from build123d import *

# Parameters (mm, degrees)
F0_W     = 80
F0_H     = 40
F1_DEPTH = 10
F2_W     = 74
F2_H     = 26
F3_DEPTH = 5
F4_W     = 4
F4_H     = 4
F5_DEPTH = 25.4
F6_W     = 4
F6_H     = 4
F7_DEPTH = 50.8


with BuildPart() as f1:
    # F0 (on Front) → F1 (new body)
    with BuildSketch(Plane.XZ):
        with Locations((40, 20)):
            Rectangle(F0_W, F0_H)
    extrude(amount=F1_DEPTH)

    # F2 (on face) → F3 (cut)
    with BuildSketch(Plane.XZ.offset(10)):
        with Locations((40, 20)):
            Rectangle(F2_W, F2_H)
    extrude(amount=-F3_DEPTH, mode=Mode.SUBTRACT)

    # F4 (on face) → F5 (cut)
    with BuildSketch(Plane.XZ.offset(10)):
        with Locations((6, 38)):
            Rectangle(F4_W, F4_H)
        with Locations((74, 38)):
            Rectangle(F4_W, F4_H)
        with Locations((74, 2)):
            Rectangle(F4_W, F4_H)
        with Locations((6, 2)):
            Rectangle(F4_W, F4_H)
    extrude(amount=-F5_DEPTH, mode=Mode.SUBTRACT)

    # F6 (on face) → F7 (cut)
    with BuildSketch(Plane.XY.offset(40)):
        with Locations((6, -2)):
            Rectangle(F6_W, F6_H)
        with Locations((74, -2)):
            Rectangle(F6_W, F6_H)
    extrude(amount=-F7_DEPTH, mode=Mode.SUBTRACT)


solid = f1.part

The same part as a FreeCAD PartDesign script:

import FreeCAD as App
import Part
import Sketcher
from FreeCAD import Vector

doc = App.newDocument("Part")
body = doc.addObject("PartDesign::Body", "Body")

sketch1 = body.newObject("Sketcher::SketchObject", "Sketch")
sketch1.AttachmentSupport = (doc.getObject("XZ_Plane"), [""])
sketch1.MapMode = "FlatFace"
sketch1.addGeometry(Part.LineSegment(Vector(0, 40, 0), Vector(0, 0, 0)), False)
sketch1.addGeometry(Part.LineSegment(Vector(0, 0, 0), Vector(80, 0, 0)), False)
sketch1.addGeometry(Part.LineSegment(Vector(80, 0, 0), Vector(80, 40, 0)), False)
sketch1.addGeometry(Part.LineSegment(Vector(80, 40, 0), Vector(0, 40, 0)), False)
sketch1.addConstraint(Sketcher.Constraint("Coincident", 0, 2, 1, 1))
sketch1.addConstraint(Sketcher.Constraint("Coincident", 1, 2, 2, 1))
sketch1.addConstraint(Sketcher.Constraint("Coincident", 2, 2, 3, 1))
sketch1.addConstraint(Sketcher.Constraint("Coincident", 3, 2, 0, 1))
sketch1.addConstraint(Sketcher.Constraint("Vertical", 0))
sketch1.addConstraint(Sketcher.Constraint("Horizontal", 1))
sketch1.addConstraint(Sketcher.Constraint("Vertical", 2))
sketch1.addConstraint(Sketcher.Constraint("Horizontal", 3))
sketch1.addConstraint(Sketcher.Constraint("Coincident", 0, 2, -1, 1))
sketch1.addConstraint(Sketcher.Constraint("DistanceX", 1, 1, 1, 2, 80.0))
sketch1.addConstraint(Sketcher.Constraint("DistanceY", 0, 2, 0, 1, 40.0))
pad1 = body.newObject("PartDesign::Pad", "Pad")
pad1.Profile = sketch1
pad1.Length = 10

sketch2 = body.newObject("Sketcher::SketchObject", "Sketch001")
sketch2.AttachmentSupport = (doc.getObject("XZ_Plane"), [""])
sketch2.MapMode = "FlatFace"
sketch2.AttachmentOffset = App.Placement(Vector(0, 0, 10), App.Rotation())
sketch2.addGeometry(Part.LineSegment(Vector(3, 33, 0), Vector(3, 7, 0)), False)
sketch2.addGeometry(Part.LineSegment(Vector(3, 7, 0), Vector(77, 7, 0)), False)
sketch2.addGeometry(Part.LineSegment(Vector(77, 7, 0), Vector(77, 33, 0)), False)
sketch2.addGeometry(Part.LineSegment(Vector(77, 33, 0), Vector(3, 33, 0)), False)
sketch2.addConstraint(Sketcher.Constraint("Coincident", 0, 2, 1, 1))
sketch2.addConstraint(Sketcher.Constraint("Coincident", 1, 2, 2, 1))
sketch2.addConstraint(Sketcher.Constraint("Coincident", 2, 2, 3, 1))
sketch2.addConstraint(Sketcher.Constraint("Coincident", 3, 2, 0, 1))
sketch2.addConstraint(Sketcher.Constraint("Vertical", 0))
sketch2.addConstraint(Sketcher.Constraint("Horizontal", 1))
sketch2.addConstraint(Sketcher.Constraint("Vertical", 2))
sketch2.addConstraint(Sketcher.Constraint("Horizontal", 3))
sketch2.addConstraint(Sketcher.Constraint("DistanceX", 1, 1, 1, 2, 74.0))
sketch2.addConstraint(Sketcher.Constraint("DistanceY", 0, 2, 0, 1, 26.0))
sketch2.addConstraint(Sketcher.Constraint("DistanceX", -1, 1, 0, 2, 3.0))
sketch2.addConstraint(Sketcher.Constraint("DistanceY", -1, 1, 0, 2, 7.0))
pocket1 = body.newObject("PartDesign::Pocket", "Pocket")
pocket1.Profile = sketch2
pocket1.Length = 5

sketch3 = body.newObject("Sketcher::SketchObject", "Sketch002")
sketch3.AttachmentSupport = (doc.getObject("XZ_Plane"), [""])
sketch3.MapMode = "FlatFace"
sketch3.AttachmentOffset = App.Placement(Vector(0, 0, 10), App.Rotation())
sketch3.addGeometry(Part.LineSegment(Vector(4, 40, 0), Vector(4, 36, 0)), False)
sketch3.addGeometry(Part.LineSegment(Vector(4, 36, 0), Vector(8, 36, 0)), False)
sketch3.addGeometry(Part.LineSegment(Vector(8, 36, 0), Vector(8, 40, 0)), False)
sketch3.addGeometry(Part.LineSegment(Vector(8, 40, 0), Vector(4, 40, 0)), False)
sketch3.addGeometry(Part.LineSegment(Vector(72, 40, 0), Vector(72, 36, 0)), False)
sketch3.addGeometry(Part.LineSegment(Vector(72, 36, 0), Vector(76, 36, 0)), False)
sketch3.addGeometry(Part.LineSegment(Vector(76, 36, 0), Vector(76, 40, 0)), False)
sketch3.addGeometry(Part.LineSegment(Vector(76, 40, 0), Vector(72, 40, 0)), False)
sketch3.addGeometry(Part.LineSegment(Vector(72, 4, 0), Vector(72, 0, 0)), False)
sketch3.addGeometry(Part.LineSegment(Vector(72, 0, 0), Vector(76, 0, 0)), False)
sketch3.addGeometry(Part.LineSegment(Vector(76, 0, 0), Vector(76, 4, 0)), False)
sketch3.addGeometry(Part.LineSegment(Vector(76, 4, 0), Vector(72, 4, 0)), False)
sketch3.addGeometry(Part.LineSegment(Vector(4, 4, 0), Vector(4, 0, 0)), False)
sketch3.addGeometry(Part.LineSegment(Vector(4, 0, 0), Vector(8, 0, 0)), False)
sketch3.addGeometry(Part.LineSegment(Vector(8, 0, 0), Vector(8, 4, 0)), False)
sketch3.addGeometry(Part.LineSegment(Vector(8, 4, 0), Vector(4, 4, 0)), False)
sketch3.addConstraint(Sketcher.Constraint("Coincident", 0, 2, 1, 1))
sketch3.addConstraint(Sketcher.Constraint("Coincident", 1, 2, 2, 1))
sketch3.addConstraint(Sketcher.Constraint("Coincident", 2, 2, 3, 1))
sketch3.addConstraint(Sketcher.Constraint("Coincident", 3, 2, 0, 1))
sketch3.addConstraint(Sketcher.Constraint("Coincident", 4, 2, 5, 1))
sketch3.addConstraint(Sketcher.Constraint("Coincident", 5, 2, 6, 1))
sketch3.addConstraint(Sketcher.Constraint("Coincident", 6, 2, 7, 1))
sketch3.addConstraint(Sketcher.Constraint("Coincident", 7, 2, 4, 1))
sketch3.addConstraint(Sketcher.Constraint("Coincident", 8, 2, 9, 1))
sketch3.addConstraint(Sketcher.Constraint("Coincident", 9, 2, 10, 1))
sketch3.addConstraint(Sketcher.Constraint("Coincident", 10, 2, 11, 1))
sketch3.addConstraint(Sketcher.Constraint("Coincident", 11, 2, 8, 1))
sketch3.addConstraint(Sketcher.Constraint("Coincident", 12, 2, 13, 1))
sketch3.addConstraint(Sketcher.Constraint("Coincident", 13, 2, 14, 1))
sketch3.addConstraint(Sketcher.Constraint("Coincident", 14, 2, 15, 1))
sketch3.addConstraint(Sketcher.Constraint("Coincident", 15, 2, 12, 1))
sketch3.addConstraint(Sketcher.Constraint("Vertical", 0))
sketch3.addConstraint(Sketcher.Constraint("Horizontal", 1))
sketch3.addConstraint(Sketcher.Constraint("Vertical", 2))
sketch3.addConstraint(Sketcher.Constraint("Horizontal", 3))
sketch3.addConstraint(Sketcher.Constraint("Vertical", 4))
sketch3.addConstraint(Sketcher.Constraint("Horizontal", 5))
sketch3.addConstraint(Sketcher.Constraint("Vertical", 6))
sketch3.addConstraint(Sketcher.Constraint("Horizontal", 7))
sketch3.addConstraint(Sketcher.Constraint("Vertical", 8))
sketch3.addConstraint(Sketcher.Constraint("Horizontal", 9))
sketch3.addConstraint(Sketcher.Constraint("Vertical", 10))
sketch3.addConstraint(Sketcher.Constraint("Horizontal", 11))
sketch3.addConstraint(Sketcher.Constraint("Vertical", 12))
sketch3.addConstraint(Sketcher.Constraint("Horizontal", 13))
sketch3.addConstraint(Sketcher.Constraint("Vertical", 14))
sketch3.addConstraint(Sketcher.Constraint("Horizontal", 15))
sketch3.addConstraint(Sketcher.Constraint("PointOnObject", 8, 2, -1))
sketch3.addConstraint(Sketcher.Constraint("PointOnObject", 12, 2, -1))
sketch3.addConstraint(Sketcher.Constraint("Horizontal", 1, 2, 4, 2))
sketch3.addConstraint(Sketcher.Constraint("Horizontal", 3, 2, 6, 2))
sketch3.addConstraint(Sketcher.Constraint("Horizontal", 11, 2, 14, 2))
sketch3.addConstraint(Sketcher.Constraint("Vertical", 7, 2, 8, 2))
sketch3.addConstraint(Sketcher.Constraint("Vertical", 6, 2, 9, 2))
sketch3.addConstraint(Sketcher.Constraint("Vertical", 3, 2, 12, 2))
sketch3.addConstraint(Sketcher.Constraint("Vertical", 2, 2, 13, 2))
sketch3.addConstraint(Sketcher.Constraint("Equal", 3, 5))
sketch3.addConstraint(Sketcher.Constraint("Equal", 15, 0))
sketch3.addConstraint(Sketcher.Constraint("Equal", 6, 8))
sketch3.addConstraint(Sketcher.Constraint("DistanceX", 1, 1, 1, 2, 4.0))
sketch3.addConstraint(Sketcher.Constraint("DistanceX", -1, 1, 0, 2, 4.0))
sketch3.addConstraint(Sketcher.Constraint("DistanceY", -1, 1, 0, 2, 36.0))
sketch3.addConstraint(Sketcher.Constraint("DistanceX", -1, 1, 4, 2, 72.0))
pocket2 = body.newObject("PartDesign::Pocket", "Pocket001")
pocket2.Profile = sketch3
pocket2.Length = 25.4

sketch4 = body.newObject("Sketcher::SketchObject", "Sketch003")
sketch4.AttachmentSupport = (doc.getObject("XY_Plane"), [""])
sketch4.MapMode = "FlatFace"
sketch4.AttachmentOffset = App.Placement(Vector(0, 0, 40), App.Rotation())
sketch4.addGeometry(Part.LineSegment(Vector(4, 0, 0), Vector(4, -4, 0)), False)
sketch4.addGeometry(Part.LineSegment(Vector(4, -4, 0), Vector(8, -4, 0)), False)
sketch4.addGeometry(Part.LineSegment(Vector(8, -4, 0), Vector(8, 0, 0)), False)
sketch4.addGeometry(Part.LineSegment(Vector(8, 0, 0), Vector(4, 0, 0)), False)
sketch4.addGeometry(Part.LineSegment(Vector(72, 0, 0), Vector(72, -4, 0)), False)
sketch4.addGeometry(Part.LineSegment(Vector(72, -4, 0), Vector(76, -4, 0)), False)
sketch4.addGeometry(Part.LineSegment(Vector(76, -4, 0), Vector(76, 0, 0)), False)
sketch4.addGeometry(Part.LineSegment(Vector(76, 0, 0), Vector(72, 0, 0)), False)
sketch4.addConstraint(Sketcher.Constraint("Coincident", 0, 2, 1, 1))
sketch4.addConstraint(Sketcher.Constraint("Coincident", 1, 2, 2, 1))
sketch4.addConstraint(Sketcher.Constraint("Coincident", 2, 2, 3, 1))
sketch4.addConstraint(Sketcher.Constraint("Coincident", 3, 2, 0, 1))
sketch4.addConstraint(Sketcher.Constraint("Coincident", 4, 2, 5, 1))
sketch4.addConstraint(Sketcher.Constraint("Coincident", 5, 2, 6, 1))
sketch4.addConstraint(Sketcher.Constraint("Coincident", 6, 2, 7, 1))
sketch4.addConstraint(Sketcher.Constraint("Coincident", 7, 2, 4, 1))
sketch4.addConstraint(Sketcher.Constraint("Vertical", 0))
sketch4.addConstraint(Sketcher.Constraint("Horizontal", 1))
sketch4.addConstraint(Sketcher.Constraint("Vertical", 2))
sketch4.addConstraint(Sketcher.Constraint("Horizontal", 3))
sketch4.addConstraint(Sketcher.Constraint("Vertical", 4))
sketch4.addConstraint(Sketcher.Constraint("Horizontal", 5))
sketch4.addConstraint(Sketcher.Constraint("Vertical", 6))
sketch4.addConstraint(Sketcher.Constraint("Horizontal", 7))
sketch4.addConstraint(Sketcher.Constraint("PointOnObject", 2, 2, -1))
sketch4.addConstraint(Sketcher.Constraint("PointOnObject", 6, 2, -1))
sketch4.addConstraint(Sketcher.Constraint("Horizontal", 1, 2, 4, 2))
sketch4.addConstraint(Sketcher.Constraint("Equal", 3, 5))
sketch4.addConstraint(Sketcher.Constraint("Equal", 7, 0))
sketch4.addConstraint(Sketcher.Constraint("DistanceX", 1, 1, 1, 2, 4.0))
sketch4.addConstraint(Sketcher.Constraint("DistanceX", -1, 1, 0, 2, 4.0))
sketch4.addConstraint(Sketcher.Constraint("DistanceX", -1, 1, 4, 2, 72.0))
pocket3 = body.newObject("PartDesign::Pocket", "Pocket002")
pocket3.Profile = sketch4
pocket3.Length = 50.8

doc.recompute()
